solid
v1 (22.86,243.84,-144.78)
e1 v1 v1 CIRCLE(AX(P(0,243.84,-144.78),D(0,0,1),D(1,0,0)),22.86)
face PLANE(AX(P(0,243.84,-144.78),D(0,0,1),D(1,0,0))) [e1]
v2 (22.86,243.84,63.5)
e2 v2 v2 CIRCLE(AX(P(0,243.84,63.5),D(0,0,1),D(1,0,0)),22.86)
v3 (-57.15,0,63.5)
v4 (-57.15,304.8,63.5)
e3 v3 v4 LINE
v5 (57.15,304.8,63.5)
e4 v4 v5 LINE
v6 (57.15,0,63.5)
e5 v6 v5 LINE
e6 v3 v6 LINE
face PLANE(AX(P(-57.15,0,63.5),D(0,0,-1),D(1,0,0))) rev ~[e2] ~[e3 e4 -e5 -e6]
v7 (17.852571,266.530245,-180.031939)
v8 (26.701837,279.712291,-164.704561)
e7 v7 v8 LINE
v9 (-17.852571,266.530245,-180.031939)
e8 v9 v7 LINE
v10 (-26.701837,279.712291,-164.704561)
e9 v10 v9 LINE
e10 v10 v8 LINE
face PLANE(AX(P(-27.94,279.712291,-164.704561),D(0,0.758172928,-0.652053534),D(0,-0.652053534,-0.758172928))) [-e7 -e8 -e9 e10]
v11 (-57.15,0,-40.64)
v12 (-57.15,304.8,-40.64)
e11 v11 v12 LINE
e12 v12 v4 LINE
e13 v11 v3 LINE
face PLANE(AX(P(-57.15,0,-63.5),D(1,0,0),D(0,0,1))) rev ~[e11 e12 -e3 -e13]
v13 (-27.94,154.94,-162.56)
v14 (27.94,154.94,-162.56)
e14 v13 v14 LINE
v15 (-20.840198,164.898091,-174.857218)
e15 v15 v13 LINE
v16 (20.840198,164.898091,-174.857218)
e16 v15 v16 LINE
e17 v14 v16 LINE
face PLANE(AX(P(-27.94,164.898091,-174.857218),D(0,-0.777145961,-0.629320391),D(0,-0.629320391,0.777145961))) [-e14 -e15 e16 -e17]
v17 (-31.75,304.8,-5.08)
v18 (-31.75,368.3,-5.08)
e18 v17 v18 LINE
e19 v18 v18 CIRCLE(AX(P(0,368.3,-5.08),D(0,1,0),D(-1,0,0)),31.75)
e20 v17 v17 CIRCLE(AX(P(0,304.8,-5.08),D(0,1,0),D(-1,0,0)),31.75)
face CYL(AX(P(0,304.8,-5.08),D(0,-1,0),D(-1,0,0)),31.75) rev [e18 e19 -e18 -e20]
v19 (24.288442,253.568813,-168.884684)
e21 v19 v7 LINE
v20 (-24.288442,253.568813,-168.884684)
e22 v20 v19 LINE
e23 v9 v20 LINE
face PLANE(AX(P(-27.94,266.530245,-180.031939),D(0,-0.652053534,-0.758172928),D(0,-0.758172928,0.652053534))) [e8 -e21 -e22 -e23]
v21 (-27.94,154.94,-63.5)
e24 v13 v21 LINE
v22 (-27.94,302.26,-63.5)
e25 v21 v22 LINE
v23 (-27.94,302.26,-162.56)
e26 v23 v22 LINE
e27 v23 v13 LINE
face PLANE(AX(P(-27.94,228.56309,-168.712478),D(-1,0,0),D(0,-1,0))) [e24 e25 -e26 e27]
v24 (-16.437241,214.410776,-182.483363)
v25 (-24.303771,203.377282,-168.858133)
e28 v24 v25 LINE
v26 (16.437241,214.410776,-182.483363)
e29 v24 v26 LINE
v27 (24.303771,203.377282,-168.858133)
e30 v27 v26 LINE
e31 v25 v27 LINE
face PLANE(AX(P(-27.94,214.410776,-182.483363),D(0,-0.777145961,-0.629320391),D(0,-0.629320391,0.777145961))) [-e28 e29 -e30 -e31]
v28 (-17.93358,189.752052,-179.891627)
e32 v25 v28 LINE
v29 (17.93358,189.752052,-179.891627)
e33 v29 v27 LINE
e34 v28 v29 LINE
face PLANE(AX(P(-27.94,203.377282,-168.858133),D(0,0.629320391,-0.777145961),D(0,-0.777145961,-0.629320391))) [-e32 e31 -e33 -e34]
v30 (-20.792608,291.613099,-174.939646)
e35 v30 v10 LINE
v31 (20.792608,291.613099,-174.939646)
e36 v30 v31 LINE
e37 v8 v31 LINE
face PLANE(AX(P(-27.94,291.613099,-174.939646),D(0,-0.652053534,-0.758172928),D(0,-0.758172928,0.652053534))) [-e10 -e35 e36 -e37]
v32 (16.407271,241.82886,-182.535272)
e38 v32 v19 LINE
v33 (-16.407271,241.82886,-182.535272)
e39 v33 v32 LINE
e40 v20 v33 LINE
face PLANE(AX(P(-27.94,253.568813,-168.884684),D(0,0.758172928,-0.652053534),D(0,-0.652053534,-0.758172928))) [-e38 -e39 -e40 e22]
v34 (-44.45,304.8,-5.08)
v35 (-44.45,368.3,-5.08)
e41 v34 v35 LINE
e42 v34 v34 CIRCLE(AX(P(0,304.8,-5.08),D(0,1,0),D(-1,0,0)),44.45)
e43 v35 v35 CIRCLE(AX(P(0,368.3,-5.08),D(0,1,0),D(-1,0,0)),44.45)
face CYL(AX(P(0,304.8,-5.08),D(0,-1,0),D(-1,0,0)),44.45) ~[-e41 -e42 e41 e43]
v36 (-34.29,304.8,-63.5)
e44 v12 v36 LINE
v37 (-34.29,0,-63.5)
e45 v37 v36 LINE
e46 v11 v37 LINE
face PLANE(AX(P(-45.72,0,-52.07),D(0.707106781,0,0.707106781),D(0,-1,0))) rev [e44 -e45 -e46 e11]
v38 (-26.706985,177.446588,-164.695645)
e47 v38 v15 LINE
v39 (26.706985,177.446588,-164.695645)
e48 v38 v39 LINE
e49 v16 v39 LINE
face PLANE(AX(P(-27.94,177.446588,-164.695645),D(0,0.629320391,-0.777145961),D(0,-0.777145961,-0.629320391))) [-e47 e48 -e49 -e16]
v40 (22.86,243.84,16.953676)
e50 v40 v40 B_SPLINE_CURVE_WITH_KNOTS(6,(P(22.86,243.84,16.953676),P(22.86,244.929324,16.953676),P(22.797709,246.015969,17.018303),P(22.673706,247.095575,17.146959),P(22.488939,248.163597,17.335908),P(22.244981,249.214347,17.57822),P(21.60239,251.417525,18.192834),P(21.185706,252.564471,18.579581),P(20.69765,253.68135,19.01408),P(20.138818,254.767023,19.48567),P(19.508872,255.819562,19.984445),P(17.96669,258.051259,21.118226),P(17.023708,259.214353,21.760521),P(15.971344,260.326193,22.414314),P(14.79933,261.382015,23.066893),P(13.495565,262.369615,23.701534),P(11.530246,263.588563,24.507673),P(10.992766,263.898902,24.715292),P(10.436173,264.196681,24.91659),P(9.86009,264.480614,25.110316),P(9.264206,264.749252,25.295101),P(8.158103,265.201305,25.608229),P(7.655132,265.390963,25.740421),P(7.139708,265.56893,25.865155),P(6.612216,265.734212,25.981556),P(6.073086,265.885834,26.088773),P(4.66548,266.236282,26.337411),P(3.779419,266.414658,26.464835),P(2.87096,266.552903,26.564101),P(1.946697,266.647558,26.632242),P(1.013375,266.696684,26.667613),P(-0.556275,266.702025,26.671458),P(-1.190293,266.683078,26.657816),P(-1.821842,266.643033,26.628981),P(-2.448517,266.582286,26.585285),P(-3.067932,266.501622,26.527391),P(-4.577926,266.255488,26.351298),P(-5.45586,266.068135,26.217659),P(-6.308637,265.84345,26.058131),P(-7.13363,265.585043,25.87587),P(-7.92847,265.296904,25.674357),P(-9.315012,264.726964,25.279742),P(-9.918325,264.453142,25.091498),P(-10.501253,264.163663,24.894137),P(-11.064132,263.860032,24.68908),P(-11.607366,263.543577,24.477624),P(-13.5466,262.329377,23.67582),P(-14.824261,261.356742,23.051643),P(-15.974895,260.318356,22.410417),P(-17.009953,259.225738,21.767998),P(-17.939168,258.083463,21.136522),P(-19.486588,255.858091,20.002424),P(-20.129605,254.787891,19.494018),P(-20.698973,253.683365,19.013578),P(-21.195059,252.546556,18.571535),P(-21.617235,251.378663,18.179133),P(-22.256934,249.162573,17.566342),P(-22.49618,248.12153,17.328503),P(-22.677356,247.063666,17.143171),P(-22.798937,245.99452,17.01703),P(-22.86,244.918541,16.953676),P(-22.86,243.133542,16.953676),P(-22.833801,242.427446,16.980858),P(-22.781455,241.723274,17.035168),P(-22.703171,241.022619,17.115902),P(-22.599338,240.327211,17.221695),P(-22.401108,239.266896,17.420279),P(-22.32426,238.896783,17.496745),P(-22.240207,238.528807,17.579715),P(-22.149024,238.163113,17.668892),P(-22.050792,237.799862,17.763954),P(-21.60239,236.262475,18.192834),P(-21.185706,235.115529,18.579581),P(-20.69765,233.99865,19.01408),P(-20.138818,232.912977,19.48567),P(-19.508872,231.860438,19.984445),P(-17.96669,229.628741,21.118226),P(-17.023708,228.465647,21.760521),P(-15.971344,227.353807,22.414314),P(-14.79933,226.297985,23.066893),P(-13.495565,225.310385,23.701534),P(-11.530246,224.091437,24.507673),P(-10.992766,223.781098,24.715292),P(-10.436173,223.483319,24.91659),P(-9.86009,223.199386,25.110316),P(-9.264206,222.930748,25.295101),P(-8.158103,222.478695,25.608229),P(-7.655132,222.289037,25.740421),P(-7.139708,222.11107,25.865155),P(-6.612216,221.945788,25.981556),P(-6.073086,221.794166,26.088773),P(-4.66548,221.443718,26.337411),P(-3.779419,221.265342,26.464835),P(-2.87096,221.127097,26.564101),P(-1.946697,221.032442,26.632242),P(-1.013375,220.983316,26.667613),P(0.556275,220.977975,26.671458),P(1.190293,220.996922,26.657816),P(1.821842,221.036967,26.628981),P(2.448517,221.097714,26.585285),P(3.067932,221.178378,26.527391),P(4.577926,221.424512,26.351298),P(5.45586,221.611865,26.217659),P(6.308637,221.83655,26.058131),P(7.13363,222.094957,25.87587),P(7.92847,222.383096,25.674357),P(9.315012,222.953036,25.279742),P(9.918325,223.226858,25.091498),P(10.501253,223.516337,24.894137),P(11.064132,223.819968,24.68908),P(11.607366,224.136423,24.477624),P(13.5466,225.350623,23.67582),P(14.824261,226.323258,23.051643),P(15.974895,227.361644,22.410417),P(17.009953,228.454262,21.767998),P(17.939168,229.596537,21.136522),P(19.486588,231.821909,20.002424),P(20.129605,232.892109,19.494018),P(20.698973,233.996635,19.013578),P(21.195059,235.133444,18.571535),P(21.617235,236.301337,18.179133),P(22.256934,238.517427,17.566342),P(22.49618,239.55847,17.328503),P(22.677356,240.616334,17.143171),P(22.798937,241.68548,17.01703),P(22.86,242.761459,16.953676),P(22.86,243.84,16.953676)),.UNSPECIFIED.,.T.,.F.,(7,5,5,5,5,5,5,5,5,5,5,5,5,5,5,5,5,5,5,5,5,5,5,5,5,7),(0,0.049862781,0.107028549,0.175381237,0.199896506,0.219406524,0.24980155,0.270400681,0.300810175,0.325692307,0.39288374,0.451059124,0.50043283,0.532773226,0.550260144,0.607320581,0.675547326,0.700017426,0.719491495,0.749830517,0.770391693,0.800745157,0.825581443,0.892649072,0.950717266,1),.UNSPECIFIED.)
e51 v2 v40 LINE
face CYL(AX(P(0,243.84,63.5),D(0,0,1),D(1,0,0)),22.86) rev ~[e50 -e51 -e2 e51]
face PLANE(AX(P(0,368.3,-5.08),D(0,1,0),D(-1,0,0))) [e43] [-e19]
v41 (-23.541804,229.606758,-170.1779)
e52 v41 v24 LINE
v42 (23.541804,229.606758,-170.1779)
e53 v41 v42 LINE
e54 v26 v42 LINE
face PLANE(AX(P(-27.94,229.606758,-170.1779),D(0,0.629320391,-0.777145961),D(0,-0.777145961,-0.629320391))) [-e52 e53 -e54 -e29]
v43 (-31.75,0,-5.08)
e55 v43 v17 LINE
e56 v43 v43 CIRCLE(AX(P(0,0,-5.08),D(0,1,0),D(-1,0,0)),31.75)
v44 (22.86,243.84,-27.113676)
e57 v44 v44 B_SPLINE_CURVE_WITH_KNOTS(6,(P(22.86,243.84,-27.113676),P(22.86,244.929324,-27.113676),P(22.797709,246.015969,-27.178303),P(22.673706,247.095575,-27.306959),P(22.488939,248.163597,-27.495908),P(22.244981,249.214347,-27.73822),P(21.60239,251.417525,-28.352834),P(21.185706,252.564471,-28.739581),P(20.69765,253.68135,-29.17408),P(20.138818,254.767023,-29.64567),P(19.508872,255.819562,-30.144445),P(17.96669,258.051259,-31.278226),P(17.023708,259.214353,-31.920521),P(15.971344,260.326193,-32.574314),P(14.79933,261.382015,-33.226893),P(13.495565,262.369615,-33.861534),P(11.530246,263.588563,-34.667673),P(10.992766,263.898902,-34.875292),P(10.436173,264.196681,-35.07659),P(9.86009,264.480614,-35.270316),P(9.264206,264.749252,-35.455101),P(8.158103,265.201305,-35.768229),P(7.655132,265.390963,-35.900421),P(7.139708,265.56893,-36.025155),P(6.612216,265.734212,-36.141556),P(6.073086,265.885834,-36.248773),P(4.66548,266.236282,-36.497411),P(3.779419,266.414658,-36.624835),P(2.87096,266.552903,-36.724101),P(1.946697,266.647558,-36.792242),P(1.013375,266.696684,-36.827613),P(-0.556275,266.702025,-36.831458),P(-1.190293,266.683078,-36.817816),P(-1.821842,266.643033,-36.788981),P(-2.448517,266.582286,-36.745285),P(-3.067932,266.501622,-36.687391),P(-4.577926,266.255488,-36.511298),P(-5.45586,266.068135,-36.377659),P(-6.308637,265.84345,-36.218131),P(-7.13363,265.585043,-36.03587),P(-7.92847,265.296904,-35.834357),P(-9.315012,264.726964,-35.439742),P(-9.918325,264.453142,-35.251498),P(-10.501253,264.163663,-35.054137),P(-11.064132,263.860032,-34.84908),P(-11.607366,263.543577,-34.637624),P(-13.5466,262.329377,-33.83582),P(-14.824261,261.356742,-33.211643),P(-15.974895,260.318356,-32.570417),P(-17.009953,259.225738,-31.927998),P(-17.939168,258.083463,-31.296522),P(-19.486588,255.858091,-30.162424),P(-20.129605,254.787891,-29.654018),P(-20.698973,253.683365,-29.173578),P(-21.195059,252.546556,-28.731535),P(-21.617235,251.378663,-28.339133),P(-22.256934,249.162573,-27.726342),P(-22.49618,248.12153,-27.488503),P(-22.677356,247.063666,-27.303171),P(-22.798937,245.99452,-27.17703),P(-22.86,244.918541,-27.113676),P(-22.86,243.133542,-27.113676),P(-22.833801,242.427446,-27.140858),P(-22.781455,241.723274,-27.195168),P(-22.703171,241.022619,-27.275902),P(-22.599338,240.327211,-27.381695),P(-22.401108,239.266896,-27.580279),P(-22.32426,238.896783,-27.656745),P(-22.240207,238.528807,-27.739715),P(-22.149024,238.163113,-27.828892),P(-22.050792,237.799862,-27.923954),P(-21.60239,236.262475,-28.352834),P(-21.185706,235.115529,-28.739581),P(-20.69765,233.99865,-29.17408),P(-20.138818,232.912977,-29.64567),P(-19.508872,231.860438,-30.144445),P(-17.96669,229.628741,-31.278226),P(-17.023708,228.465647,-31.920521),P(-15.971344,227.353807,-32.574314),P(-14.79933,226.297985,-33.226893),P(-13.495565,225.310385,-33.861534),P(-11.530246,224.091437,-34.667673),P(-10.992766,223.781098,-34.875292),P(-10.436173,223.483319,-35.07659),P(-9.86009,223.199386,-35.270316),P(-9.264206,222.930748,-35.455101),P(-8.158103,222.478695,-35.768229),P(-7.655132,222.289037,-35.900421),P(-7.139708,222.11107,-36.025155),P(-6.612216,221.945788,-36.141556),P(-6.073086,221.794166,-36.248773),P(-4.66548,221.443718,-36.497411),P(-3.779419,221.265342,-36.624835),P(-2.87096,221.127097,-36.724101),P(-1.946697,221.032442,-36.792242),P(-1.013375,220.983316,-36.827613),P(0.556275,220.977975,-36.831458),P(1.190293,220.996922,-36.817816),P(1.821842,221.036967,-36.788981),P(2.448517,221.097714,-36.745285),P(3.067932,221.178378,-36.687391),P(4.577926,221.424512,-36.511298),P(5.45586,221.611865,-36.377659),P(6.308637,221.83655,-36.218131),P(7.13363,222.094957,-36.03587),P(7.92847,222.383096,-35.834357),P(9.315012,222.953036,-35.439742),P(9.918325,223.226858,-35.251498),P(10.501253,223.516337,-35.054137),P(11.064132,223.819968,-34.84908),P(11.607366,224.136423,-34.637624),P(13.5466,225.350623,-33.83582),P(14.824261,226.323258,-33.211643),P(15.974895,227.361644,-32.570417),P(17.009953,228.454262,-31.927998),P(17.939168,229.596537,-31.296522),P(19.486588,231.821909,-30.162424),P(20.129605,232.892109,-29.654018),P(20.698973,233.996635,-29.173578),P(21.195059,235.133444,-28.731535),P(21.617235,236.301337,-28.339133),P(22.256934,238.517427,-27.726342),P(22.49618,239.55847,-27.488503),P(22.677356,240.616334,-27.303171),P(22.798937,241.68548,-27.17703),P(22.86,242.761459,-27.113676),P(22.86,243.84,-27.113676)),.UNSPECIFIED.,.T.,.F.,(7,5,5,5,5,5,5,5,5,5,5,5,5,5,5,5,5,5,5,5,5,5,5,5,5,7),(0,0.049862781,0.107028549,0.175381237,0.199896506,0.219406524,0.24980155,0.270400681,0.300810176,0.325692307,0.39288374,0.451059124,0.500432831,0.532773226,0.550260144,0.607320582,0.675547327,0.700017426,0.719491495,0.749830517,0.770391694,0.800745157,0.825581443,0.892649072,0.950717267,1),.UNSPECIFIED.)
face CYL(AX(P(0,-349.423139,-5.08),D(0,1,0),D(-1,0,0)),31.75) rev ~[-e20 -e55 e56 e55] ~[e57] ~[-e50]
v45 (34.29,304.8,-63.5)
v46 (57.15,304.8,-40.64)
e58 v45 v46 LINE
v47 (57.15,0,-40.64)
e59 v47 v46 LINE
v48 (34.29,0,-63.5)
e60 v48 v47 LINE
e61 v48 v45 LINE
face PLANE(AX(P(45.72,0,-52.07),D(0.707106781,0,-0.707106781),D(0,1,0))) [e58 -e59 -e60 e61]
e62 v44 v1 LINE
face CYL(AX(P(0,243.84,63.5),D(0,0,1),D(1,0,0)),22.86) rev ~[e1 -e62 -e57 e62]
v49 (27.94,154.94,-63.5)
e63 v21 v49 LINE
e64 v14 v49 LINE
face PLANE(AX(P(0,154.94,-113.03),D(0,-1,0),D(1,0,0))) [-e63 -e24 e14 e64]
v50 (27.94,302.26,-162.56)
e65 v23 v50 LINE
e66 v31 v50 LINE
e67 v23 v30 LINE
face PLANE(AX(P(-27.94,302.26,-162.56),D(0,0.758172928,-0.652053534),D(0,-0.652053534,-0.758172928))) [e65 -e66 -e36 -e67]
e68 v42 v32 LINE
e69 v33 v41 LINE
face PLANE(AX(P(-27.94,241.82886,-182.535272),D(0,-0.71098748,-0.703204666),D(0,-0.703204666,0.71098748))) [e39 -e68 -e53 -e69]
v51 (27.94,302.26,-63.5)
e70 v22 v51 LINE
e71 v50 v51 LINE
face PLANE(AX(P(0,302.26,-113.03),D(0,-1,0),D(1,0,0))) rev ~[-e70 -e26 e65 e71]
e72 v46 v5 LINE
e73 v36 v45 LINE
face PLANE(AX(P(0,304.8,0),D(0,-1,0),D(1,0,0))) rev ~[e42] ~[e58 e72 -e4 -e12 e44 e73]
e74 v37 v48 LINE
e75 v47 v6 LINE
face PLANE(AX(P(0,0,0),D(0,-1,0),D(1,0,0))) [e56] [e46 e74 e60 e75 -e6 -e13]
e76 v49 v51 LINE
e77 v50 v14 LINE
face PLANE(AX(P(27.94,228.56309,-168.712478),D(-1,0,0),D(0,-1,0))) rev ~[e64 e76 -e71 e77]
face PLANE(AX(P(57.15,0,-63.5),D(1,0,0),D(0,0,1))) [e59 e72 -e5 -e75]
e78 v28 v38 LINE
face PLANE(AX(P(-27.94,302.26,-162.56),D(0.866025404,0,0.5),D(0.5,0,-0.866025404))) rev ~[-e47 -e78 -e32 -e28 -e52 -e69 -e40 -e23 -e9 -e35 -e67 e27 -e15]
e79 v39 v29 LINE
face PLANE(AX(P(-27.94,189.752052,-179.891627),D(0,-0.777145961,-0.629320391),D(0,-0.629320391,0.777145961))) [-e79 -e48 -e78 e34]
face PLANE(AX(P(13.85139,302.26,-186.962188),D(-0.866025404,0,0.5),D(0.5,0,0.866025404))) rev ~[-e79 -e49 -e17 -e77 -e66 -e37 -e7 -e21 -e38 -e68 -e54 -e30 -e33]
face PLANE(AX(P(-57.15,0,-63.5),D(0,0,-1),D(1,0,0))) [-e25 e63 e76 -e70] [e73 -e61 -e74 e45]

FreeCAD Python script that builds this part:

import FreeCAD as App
import Part
import Sketcher
from FreeCAD import Vector
Q = App.Units.Quantity


def edges_at(feature, points):
    """Names of the edges that pass closest to the given points."""
    edges = feature.Shape.Edges
    near = lambda p: min(range(len(edges)), key=lambda i: edges[i].distToShape(Part.Vertex(*p))[0])
    return sorted({f"Edge{near(p) + 1}" for p in points})


def add_polygon(sketch, points):
    """Adds a closed chain of lines whose ends are joined by coincident constraints."""
    first, n = sketch.GeometryCount, len(points)
    for a, b in zip(points, points[1:] + points[:1]):
        sketch.addGeometry(Part.LineSegment(App.Vector(*a, 0), App.Vector(*b, 0)), False)
    for i in range(n):
        sketch.addConstraint(Sketcher.Constraint("Coincident", first + i, 2, first + (i + 1) % n, 1))

doc = App.newDocument("Part")
body = doc.addObject("PartDesign::Body", "Body")

# Sketch on XZ plane
sketch1 = body.newObject("Sketcher::SketchObject", "Sketch")
sketch1.AttachmentSupport = (doc.getObject("XZ_Plane"), [""])
sketch1.MapMode = "FlatFace"
add_polygon(sketch1, [(-57, 64), (-57, -64), (57, -64), (57, 64)])  # lines 0-3
sketch1.addConstraint(Sketcher.Constraint("Vertical", 0))
sketch1.addConstraint(Sketcher.Constraint("Horizontal", 1))
sketch1.addConstraint(Sketcher.Constraint("Vertical", 2))
sketch1.addConstraint(Sketcher.Constraint("Horizontal", 3))
sketch1.addConstraint(Sketcher.Constraint("Symmetric", 0, 2, 2, 2, -1, 1))
sketch1.addConstraint(Sketcher.Constraint("DistanceY", 0, 2, 0, 1, Q("5 in")))
sketch1.addConstraint(Sketcher.Constraint("DistanceX", 1, 1, 1, 2, Q("4.5 in")))
pad1 = body.newObject("PartDesign::Pad", "Pad")
pad1.Profile = sketch1
pad1.Length = Q("12 in")
pad1.Reversed = True
doc.recompute()

chamfer = body.newObject("PartDesign::Chamfer", "Chamfer")
chamfer.Base = (pad1, edges_at(pad1, [(57.15, 152.4, -63.5), (-57.15, 152.4, -63.5)]))
chamfer.ChamferType = "Two distances"
chamfer.Size = Q("0.9 in")
chamfer.Size2 = Q("0.9 in")

# Sketch on XZ plane
sketch2 = body.newObject("Sketcher::SketchObject", "Sketch001")
sketch2.AttachmentSupport = (doc.getObject("XZ_Plane"), [""])
sketch2.MapMode = "FlatFace"
sketch2.addGeometry(Part.Circle(Vector(0, -5, 0), Vector(0, 0, 1), 32), False)
sketch2.addConstraint(Sketcher.Constraint("PointOnObject", 0, 3, -2))
sketch2.addConstraint(Sketcher.Constraint("Diameter", 0, Q("2.5 in")))
sketch2.addConstraint(Sketcher.Constraint("DistanceY", 0, 3, -1, 1, Q("0.2 in")))
doc.recompute()
hole = body.newObject("PartDesign::Hole", "Hole")
hole.Profile = sketch2
hole.ThreadType = "None"
hole.Diameter = Q("2.5 in")
hole.DepthType = "ThroughAll"

# Sketch on XZ plane
sketch3 = body.newObject("Sketcher::SketchObject", "Sketch002")
sketch3.AttachmentSupport = (doc.getObject("XZ_Plane"), [""])
sketch3.MapMode = "FlatFace"
sketch3.AttachmentOffset = App.Placement(Vector(0, 0, -12 * 25.4), App.Rotation())
sketch3.addGeometry(Part.Circle(Vector(0, -5, 0), Vector(0, 0, 1), 44), False)
sketch3.addGeometry(Part.Circle(Vector(0, -5, 0), Vector(0, 0, 1), 32), False)
sketch3.addConstraint(Sketcher.Constraint("Coincident", 1, 3, 0, 3))
sketch3.addConstraint(Sketcher.Constraint("PointOnObject", 0, 3, -2))
sketch3.addConstraint(Sketcher.Constraint("Diameter", 0, Q("3.5 in")))
sketch3.addConstraint(Sketcher.Constraint("Diameter", 1, Q("2.5 in")))
sketch3.addConstraint(Sketcher.Constraint("DistanceY", 0, 3, -1, 1, Q("0.2 in")))
pad2 = body.newObject("PartDesign::Pad", "Pad001")
pad2.Profile = sketch3
pad2.Length = Q("2.5 in")
pad2.Reversed = True

# Sketch on XZ plane
sketch4 = body.newObject("Sketcher::SketchObject", "Sketch003")
sketch4.AttachmentSupport = (doc.getObject("XZ_Plane"), [""])
sketch4.MapMode = "FlatFace"
sketch4.AttachmentOffset = App.Placement(Vector(0, 0, -6.1 * 25.4), App.Rotation())
add_polygon(sketch4, [(-28, -64), (-28, -163), (28, -163), (28, -64)])  # lines 0-3
sketch4.addConstraint(Sketcher.Constraint("Vertical", 0))
sketch4.addConstraint(Sketcher.Constraint("Horizontal", 1))
sketch4.addConstraint(Sketcher.Constraint("Vertical", 2))
sketch4.addConstraint(Sketcher.Constraint("Horizontal", 3))
sketch4.addConstraint(Sketcher.Constraint("DistanceX", 1, 1, 1, 2, Q("2.2 in")))
sketch4.addConstraint(Sketcher.Constraint("DistanceY", 0, 2, 0, 1, Q("3.9 in")))
sketch4.addConstraint(Sketcher.Constraint("DistanceX", 0, 2, -1, 1, Q("1.1 in")))
sketch4.addConstraint(Sketcher.Constraint("DistanceY", 0, 2, -1, 1, Q("6.4 in")))
pad3 = body.newObject("PartDesign::Pad", "Pad002")
pad3.Profile = sketch4
pad3.Length = Q("5.8 in")
pad3.Reversed = True

# Sketch on YZ plane
sketch5 = body.newObject("Sketcher::SketchObject", "Sketch004")
sketch5.AttachmentSupport = (doc.getObject("YZ_Plane"), [""])
sketch5.MapMode = "FlatFace"
sketch5.AttachmentOffset = App.Placement(Vector(0, 0, -1.1 * 25.4), App.Rotation())
add_polygon(sketch5, [(214.410776, -182.483363), (203.377282, -168.858133), (189.752052, -179.891627), (177.446588, -164.695645), (164.898091, -174.857218), (154.94, -162.56), (302.26, -162.56), (291.613099, -174.939646), (279.712291, -164.704561), (266.530245, -180.031939), (253.568813, -168.884684), (241.82886, -182.535272), (229.606758, -170.1779)])  # lines 0-12
sketch5.addConstraint(Sketcher.Constraint("Horizontal", 5))
sketch5.addConstraint(Sketcher.Constraint("Perpendicular", 0, 1))
sketch5.addConstraint(Sketcher.Constraint("Perpendicular", 1, 2))
sketch5.addConstraint(Sketcher.Constraint("Perpendicular", 2, 3))
sketch5.addConstraint(Sketcher.Constraint("Perpendicular", 3, 4))
sketch5.addConstraint(Sketcher.Constraint("Perpendicular", 6, 7))
sketch5.addConstraint(Sketcher.Constraint("Perpendicular", 7, 8))
sketch5.addConstraint(Sketcher.Constraint("Perpendicular", 8, 9))
sketch5.addConstraint(Sketcher.Constraint("Perpendicular", 9, 10))
sketch5.addConstraint(Sketcher.Constraint("Perpendicular", 4, 12))
sketch5.addConstraint(Sketcher.Constraint("Equal", 0, 1))
sketch5.addConstraint(Sketcher.Constraint("Equal", 2, 12))
sketch5.addConstraint(Sketcher.Constraint("DistanceX", 5, 1, 5, 2, Q("5.8 in")))
sketch5.addConstraint(Sketcher.Constraint("Angle", 0, Q("129 deg")))
sketch5.addConstraint(Sketcher.Constraint("DistanceX", -1, 1, 4, 2, Q("6.1 in")))
sketch5.addConstraint(Sketcher.Constraint("DistanceY", 4, 2, -1, 1, Q("6.4 in")))
sketch5.addConstraint(Sketcher.Constraint("Distance", 3, 16.146899))
sketch5.addConstraint(Sketcher.Constraint("DistanceX", -1, 1, 6, 2, 291.613099))
sketch5.addConstraint(Sketcher.Constraint("DistanceY", 11, 2, -1, 1, 170.1779))
sketch5.addConstraint(Sketcher.Constraint("DistanceY", 6, 2, 2, 2, 10.244001))
sketch5.addConstraint(Sketcher.Constraint("Distance", 6, 16.328261))
sketch5.addConstraint(Sketcher.Constraint("DistanceX", -1, 1, 0, 2, 203.377282))
sketch5.addConstraint(Sketcher.Constraint("DistanceX", -1, 1, 7, 2, 279.712291))
sketch5.addConstraint(Sketcher.Constraint("DistanceY", 8, 2, -1, 1, 180.031939))
sketch5.addConstraint(Sketcher.Constraint("DistanceX", -1, 1, 10, 2, 241.82886))
sketch5.addConstraint(Sketcher.Constraint("DistanceX", 9, 2, 8, 2, 12.961431))
pad4 = body.newObject("PartDesign::Pad", "Pad003")
pad4.Profile = sketch5
pad4.Length = Q("2.2 in")

# Sketch on XZ plane
sketch6 = body.newObject("Sketcher::SketchObject", "Sketch005")
sketch6.AttachmentSupport = (doc.getObject("XZ_Plane"), [""])
sketch6.MapMode = "FlatFace"
sketch6.AttachmentOffset = App.Placement(Vector(0, 0, -11.9 * 25.4), App.Rotation())
add_polygon(sketch6, [(14, -187), (28, -163), (28, -187)])  # lines 0-2
add_polygon(sketch6, [(-28, -187), (-28, -163), (-14, -187)])  # lines 3-5
sketch6.addConstraint(Sketcher.Constraint("Vertical", 1))
sketch6.addConstraint(Sketcher.Constraint("Horizontal", 2))
sketch6.addConstraint(Sketcher.Constraint("Vertical", 3))
sketch6.addConstraint(Sketcher.Constraint("Horizontal", 5))
sketch6.addConstraint(Sketcher.Constraint("Symmetric", 0, 2, 3, 2, -2))
sketch6.addConstraint(Sketcher.Constraint("Symmetric", 2, 2, 4, 2, -2))
sketch6.addConstraint(Sketcher.Constraint("Angle", 0, Q("60 deg")))
sketch6.addConstraint(Sketcher.Constraint("DistanceX", -1, 1, 0, 2, Q("1.1 in")))
sketch6.addConstraint(Sketcher.Constraint("DistanceY", 0, 2, -1, 1, Q("6.4 in")))
sketch6.addConstraint(Sketcher.Constraint("DistanceX", 2, 2, 2, 1, 14.08861))
pocket1 = body.newObject("PartDesign::Pocket", "Pocket")
pocket1.Profile = sketch6
pocket1.Type = "ThroughAll"
pocket1.Reversed = True

# Sketch on XY plane
sketch7 = body.newObject("Sketcher::SketchObject", "Sketch006")
sketch7.AttachmentSupport = (doc.getObject("XY_Plane"), [""])
sketch7.MapMode = "FlatFace"
sketch7.AttachmentOffset = App.Placement(Vector(0, 0, 2.5 * 25.4), App.Rotation())
sketch7.addGeometry(Part.Circle(Vector(0, 244, 0), Vector(0, 0, 1), 23), False)
sketch7.addConstraint(Sketcher.Constraint("PointOnObject", 0, 3, -2))
sketch7.addConstraint(Sketcher.Constraint("Diameter", 0, Q("1.8 in")))
sketch7.addConstraint(Sketcher.Constraint("DistanceY", -1, 1, 0, 3, Q("9.6 in")))
pocket2 = body.newObject("PartDesign::Pocket", "Pocket001")
pocket2.Profile = sketch7
pocket2.Length = Q("8.2 in")

doc.recompute()
